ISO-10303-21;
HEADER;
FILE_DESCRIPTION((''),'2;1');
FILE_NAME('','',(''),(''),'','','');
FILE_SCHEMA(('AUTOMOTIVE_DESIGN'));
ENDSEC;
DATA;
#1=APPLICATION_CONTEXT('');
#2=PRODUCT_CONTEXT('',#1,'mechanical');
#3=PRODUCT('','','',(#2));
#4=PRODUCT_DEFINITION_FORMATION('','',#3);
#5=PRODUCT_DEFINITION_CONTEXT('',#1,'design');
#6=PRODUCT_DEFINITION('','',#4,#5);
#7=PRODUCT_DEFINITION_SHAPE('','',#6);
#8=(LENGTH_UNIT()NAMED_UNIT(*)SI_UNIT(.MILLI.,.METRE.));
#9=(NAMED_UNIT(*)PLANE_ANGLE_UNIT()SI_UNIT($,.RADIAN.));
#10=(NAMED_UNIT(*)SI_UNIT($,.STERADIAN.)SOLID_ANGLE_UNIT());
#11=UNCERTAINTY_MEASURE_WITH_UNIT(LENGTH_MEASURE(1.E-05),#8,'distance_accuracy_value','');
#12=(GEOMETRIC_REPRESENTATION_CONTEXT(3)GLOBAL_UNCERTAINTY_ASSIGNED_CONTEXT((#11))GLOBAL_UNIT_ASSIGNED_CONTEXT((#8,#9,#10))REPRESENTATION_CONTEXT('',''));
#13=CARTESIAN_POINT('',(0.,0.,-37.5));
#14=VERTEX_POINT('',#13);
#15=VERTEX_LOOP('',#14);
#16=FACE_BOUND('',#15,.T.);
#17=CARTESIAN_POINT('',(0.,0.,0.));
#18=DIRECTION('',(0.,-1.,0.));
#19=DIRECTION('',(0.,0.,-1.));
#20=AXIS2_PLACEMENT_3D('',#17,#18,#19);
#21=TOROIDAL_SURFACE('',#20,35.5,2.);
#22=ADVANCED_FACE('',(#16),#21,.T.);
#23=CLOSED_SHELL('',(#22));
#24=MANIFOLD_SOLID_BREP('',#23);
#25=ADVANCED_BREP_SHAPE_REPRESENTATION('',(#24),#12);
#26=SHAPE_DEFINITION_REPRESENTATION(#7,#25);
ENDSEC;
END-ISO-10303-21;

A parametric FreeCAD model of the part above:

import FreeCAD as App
import Part
import Sketcher

V = App.Vector
Q = App.Units.Quantity

doc = App.newDocument("Part")
body = doc.addObject("PartDesign::Body", "Body")

# Sketch on XY plane
sketch1 = doc.addObject("Sketcher::SketchObject", "Sketch")
body.addObject(sketch1)
sketch1.AttachmentSupport = (doc.XY_Plane, [""])
sketch1.MapMode = "FlatFace"
sketch1.addGeometry(Part.Circle(V(-35.5, 0, 0), V(0, 0, 1), 2), False)
sketch1.addConstraint([
    Sketcher.Constraint("PointOnObject", 0, 3, -1),
    Sketcher.Constraint("Diameter", 0, Q("4 mm")),
    Sketcher.Constraint("DistanceX", 0, 3, -1, 1, Q("35.5 mm")),
])
revolution = doc.addObject("PartDesign::Revolution", "Revolution")
body.addObject(revolution)
revolution.Profile = sketch1
revolution.ReferenceAxis = (sketch1, ["V_Axis"])
revolution.Angle = 360

doc.recompute()
